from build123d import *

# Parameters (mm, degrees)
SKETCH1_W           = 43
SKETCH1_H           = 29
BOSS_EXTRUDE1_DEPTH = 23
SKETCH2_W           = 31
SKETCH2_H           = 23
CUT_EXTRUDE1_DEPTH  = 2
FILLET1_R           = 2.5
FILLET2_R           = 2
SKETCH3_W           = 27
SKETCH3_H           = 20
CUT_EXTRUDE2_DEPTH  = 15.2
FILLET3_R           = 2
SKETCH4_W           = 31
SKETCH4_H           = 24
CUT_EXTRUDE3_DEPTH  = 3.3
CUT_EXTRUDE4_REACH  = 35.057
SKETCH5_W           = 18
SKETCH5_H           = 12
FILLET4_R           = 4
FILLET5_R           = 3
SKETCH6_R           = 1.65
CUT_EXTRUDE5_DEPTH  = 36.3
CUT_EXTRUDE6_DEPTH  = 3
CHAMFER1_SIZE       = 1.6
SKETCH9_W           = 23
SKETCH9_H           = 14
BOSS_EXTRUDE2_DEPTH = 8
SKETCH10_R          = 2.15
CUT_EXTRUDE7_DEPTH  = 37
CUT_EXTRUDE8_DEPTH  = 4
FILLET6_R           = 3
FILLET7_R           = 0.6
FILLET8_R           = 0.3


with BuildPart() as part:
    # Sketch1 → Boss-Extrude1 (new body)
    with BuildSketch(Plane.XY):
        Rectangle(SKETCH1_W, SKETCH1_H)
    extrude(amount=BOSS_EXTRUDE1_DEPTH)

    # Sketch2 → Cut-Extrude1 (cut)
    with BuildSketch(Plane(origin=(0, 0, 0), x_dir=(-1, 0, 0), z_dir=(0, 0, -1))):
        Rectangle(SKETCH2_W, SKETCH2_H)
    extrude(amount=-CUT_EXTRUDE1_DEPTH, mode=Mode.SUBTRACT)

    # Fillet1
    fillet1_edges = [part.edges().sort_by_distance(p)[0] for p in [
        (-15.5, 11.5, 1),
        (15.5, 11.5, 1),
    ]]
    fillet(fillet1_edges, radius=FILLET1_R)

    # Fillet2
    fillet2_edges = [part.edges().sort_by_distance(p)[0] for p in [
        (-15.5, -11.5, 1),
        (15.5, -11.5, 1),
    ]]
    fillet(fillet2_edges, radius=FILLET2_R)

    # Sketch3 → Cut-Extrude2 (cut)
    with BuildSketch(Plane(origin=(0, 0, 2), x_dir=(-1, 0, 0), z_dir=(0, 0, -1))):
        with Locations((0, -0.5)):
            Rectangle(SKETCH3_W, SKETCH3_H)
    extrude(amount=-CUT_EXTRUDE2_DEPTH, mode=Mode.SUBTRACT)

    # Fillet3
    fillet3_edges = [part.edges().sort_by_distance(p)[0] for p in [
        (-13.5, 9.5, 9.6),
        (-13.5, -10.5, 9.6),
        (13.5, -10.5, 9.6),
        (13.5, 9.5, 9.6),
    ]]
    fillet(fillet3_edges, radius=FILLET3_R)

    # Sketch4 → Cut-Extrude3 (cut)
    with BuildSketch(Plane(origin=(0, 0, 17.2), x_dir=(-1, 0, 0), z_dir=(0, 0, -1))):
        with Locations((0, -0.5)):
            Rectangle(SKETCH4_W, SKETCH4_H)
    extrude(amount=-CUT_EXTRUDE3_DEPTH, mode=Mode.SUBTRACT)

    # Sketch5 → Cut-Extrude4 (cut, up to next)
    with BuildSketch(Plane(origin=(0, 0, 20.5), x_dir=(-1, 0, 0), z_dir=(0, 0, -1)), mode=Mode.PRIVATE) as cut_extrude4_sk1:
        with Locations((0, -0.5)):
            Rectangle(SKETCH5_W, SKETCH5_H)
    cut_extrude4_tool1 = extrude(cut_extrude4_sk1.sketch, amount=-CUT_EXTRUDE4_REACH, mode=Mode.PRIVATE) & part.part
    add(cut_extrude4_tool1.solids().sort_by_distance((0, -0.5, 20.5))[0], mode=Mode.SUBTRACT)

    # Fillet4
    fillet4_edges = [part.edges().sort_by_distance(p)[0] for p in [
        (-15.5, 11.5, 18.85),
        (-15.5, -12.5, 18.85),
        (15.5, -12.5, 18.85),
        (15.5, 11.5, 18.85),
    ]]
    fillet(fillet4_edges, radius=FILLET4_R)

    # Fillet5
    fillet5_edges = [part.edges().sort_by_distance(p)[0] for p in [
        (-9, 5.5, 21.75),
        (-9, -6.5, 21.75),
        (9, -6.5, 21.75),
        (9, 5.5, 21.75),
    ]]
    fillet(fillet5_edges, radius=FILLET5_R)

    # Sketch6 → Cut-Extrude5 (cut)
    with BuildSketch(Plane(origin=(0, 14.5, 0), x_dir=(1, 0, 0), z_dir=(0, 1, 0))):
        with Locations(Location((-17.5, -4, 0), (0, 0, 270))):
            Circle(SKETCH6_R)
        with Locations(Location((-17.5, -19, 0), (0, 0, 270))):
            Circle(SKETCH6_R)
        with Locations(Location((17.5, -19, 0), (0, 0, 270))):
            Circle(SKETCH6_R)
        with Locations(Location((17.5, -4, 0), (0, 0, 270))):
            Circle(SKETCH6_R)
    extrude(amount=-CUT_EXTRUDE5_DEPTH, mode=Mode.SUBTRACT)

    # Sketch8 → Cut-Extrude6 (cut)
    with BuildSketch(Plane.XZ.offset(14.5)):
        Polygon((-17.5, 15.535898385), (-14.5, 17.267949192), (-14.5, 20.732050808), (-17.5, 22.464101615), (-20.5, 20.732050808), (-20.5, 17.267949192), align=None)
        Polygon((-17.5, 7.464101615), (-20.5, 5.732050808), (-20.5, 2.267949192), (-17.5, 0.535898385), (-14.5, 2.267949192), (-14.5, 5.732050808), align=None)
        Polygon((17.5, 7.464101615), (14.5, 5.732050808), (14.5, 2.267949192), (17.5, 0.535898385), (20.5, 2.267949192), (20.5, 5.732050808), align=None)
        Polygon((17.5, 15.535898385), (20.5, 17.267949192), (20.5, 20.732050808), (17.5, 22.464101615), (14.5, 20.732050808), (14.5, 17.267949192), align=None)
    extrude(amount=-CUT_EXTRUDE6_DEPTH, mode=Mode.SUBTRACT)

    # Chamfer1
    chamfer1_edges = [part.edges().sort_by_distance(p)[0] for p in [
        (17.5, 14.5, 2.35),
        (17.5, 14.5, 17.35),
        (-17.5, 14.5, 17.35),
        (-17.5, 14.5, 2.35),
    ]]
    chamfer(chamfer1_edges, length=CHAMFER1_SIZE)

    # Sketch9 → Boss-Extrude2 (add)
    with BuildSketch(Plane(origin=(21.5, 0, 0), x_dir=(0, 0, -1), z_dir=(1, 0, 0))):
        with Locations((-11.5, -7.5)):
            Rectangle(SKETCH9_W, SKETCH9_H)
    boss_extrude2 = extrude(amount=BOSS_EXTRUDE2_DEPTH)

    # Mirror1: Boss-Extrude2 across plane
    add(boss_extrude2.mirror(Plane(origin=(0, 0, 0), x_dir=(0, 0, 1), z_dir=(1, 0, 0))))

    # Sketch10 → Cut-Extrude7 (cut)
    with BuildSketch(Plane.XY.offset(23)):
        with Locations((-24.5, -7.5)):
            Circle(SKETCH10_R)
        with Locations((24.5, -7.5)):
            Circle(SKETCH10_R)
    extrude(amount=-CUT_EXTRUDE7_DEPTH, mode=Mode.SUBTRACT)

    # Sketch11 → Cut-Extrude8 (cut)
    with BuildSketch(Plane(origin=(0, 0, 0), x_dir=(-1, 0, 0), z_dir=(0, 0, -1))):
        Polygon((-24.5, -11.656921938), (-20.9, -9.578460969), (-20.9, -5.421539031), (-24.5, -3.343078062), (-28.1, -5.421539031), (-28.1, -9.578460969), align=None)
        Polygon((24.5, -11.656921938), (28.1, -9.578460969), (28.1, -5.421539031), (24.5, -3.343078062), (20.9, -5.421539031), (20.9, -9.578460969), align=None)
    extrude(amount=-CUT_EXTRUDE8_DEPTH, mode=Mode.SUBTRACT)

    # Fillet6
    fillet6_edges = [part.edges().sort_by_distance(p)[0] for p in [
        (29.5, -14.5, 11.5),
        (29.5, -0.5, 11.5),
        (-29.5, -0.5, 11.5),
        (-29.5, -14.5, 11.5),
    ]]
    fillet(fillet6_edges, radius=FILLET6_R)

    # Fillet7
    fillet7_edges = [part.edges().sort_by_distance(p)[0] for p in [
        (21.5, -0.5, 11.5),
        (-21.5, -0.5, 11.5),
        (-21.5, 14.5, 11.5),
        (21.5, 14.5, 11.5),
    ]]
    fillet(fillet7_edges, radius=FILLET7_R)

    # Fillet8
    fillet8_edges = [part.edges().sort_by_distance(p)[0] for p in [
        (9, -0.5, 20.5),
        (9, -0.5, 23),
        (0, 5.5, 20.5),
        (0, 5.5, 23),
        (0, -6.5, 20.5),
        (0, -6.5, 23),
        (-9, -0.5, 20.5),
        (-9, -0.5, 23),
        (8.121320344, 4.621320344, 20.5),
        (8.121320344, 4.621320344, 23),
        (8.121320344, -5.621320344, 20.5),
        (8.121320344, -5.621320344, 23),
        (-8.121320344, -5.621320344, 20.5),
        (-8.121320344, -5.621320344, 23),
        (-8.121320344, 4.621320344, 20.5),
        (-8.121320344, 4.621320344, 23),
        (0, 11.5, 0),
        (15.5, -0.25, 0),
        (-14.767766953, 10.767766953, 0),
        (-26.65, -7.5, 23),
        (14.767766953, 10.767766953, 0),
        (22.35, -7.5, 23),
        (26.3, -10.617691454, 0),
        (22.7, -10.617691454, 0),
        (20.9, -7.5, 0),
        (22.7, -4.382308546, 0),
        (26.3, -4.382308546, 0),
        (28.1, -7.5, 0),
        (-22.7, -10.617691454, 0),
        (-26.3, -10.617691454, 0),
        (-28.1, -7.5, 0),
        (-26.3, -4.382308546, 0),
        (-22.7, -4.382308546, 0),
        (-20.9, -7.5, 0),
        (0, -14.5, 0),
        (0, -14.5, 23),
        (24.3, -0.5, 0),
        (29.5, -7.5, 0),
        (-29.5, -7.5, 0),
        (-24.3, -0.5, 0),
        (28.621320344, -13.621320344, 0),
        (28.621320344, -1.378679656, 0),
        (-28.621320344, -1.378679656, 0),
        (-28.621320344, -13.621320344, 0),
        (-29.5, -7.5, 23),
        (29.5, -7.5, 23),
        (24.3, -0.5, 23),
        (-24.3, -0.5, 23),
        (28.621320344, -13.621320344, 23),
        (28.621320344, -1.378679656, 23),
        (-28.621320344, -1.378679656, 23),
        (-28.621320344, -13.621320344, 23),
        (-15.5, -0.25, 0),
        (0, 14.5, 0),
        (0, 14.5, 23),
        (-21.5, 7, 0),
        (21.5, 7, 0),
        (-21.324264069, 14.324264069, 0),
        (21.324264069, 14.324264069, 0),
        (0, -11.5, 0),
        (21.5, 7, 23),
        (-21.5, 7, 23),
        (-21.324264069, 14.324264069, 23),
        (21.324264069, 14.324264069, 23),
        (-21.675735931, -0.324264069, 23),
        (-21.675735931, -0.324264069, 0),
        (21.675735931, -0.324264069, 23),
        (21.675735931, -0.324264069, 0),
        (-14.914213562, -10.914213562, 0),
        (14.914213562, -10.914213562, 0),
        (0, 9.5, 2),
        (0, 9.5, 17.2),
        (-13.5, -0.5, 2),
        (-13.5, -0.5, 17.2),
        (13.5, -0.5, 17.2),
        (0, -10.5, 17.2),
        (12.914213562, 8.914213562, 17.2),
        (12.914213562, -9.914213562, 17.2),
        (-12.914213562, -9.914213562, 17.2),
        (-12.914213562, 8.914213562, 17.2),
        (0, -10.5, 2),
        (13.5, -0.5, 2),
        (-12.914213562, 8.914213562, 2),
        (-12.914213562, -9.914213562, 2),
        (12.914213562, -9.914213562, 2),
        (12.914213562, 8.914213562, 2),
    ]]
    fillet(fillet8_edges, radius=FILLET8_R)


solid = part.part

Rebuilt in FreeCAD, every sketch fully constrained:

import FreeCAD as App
import Part
import Sketcher

V = App.Vector
Q = App.Units.Quantity


def edges_at(feature, points):
    """Names of the edges that pass closest to the given points."""
    edges = feature.Shape.Edges
    near = lambda p: min(range(len(edges)), key=lambda i: edges[i].distToShape(Part.Vertex(*p))[0])
    return sorted({f"Edge{near(p) + 1}" for p in points})

doc = App.newDocument("Part")
params = doc.addObject("Spreadsheet::Sheet", "Params")
for row, (alias, value) in enumerate([
    ("sketch1_width", "43 mm"),
    ("sketch1_height", "29 mm"),
    ("pad1_length", "23 mm"),
    ("sketch2_width", "31 mm"),
    ("sketch2_height", "23 mm"),
    ("pocket1_length", "2 mm"),
    ("fillet_radius", "2.5 mm"),
    ("fillet2_radius", "2 mm"),
    ("sketch3_width", "27 mm"),
    ("sketch3_height", "20 mm"),
    ("pocket2_length", "15.2 mm"),
    ("fillet3_radius", "2 mm"),
    ("sketch4_width", "31 mm"),
    ("sketch4_height", "24 mm"),
    ("pocket3_length", "3.3 mm"),
    ("sketch5_width", "18 mm"),
    ("sketch5_height", "12 mm"),
    ("fillet4_radius", "4 mm"),
    ("fillet5_radius", "3 mm"),
    ("sketch6_diameter", "3.3 mm"),
    ("pocket5_length", "36.3 mm"),
    ("pocket6_length", "3 mm"),
    ("chamfer_size", "1.6 mm"),
    ("sketch8_width", "14 mm"),
    ("sketch8_height", "23 mm"),
    ("pad2_length", "8 mm"),
    ("sketch9_diameter", "4.3 mm"),
    ("pocket7_length", "37 mm"),
    ("pocket8_length", "4 mm"),
    ("fillet6_radius", "3 mm"),
    ("fillet7_radius", "0.6 mm"),
    ("fillet8_radius", "0.3 mm"),
], start=1):
    params.set(f"A{row}", alias)
    params.set(f"B{row}", "=" + value)
    params.setAlias(f"B{row}", alias)

body = doc.addObject("PartDesign::Body", "Body")

# Sketch on XY plane
sketch1 = body.newObject("Sketcher::SketchObject", "Sketch")
sketch1.AttachmentSupport = (doc.getObject("XY_Plane"), [""])
sketch1.MapMode = "FlatFace"
sketch1.addGeometry([
    Part.LineSegment(V(-22, 14, 0), V(-22, -14, 0)),
    Part.LineSegment(V(-22, -14, 0), V(22, -14, 0)),
    Part.LineSegment(V(22, -14, 0), V(22, 14, 0)),
    Part.LineSegment(V(22, 14, 0), V(-22, 14, 0)),
], False)
sketch1.addConstraint([
    Sketcher.Constraint("Coincident", 0, 2, 1, 1),
    Sketcher.Constraint("Coincident", 1, 2, 2, 1),
    Sketcher.Constraint("Coincident", 2, 2, 3, 1),
    Sketcher.Constraint("Coincident", 3, 2, 0, 1),
    Sketcher.Constraint("Vertical", 0),
    Sketcher.Constraint("Horizontal", 1),
    Sketcher.Constraint("Vertical", 2),
    Sketcher.Constraint("Horizontal", 3),
    Sketcher.Constraint("Symmetric", 0, 2, 2, 2, -1, 1),
    Sketcher.Constraint("DistanceX", 1, 1, 1, 2, 43.0),
    Sketcher.Constraint("DistanceY", 0, 2, 0, 1, 29.0),
])
sketch1.setExpression("Constraints[9]", "Params.sketch1_width")
sketch1.setExpression("Constraints[10]", "Params.sketch1_height")
pad1 = body.newObject("PartDesign::Pad", "Pad")
pad1.Profile = sketch1
pad1.setExpression("Length", "Params.pad1_length")

# Sketch on XY plane
sketch2 = body.newObject("Sketcher::SketchObject", "Sketch001")
sketch2.AttachmentSupport = (doc.getObject("XY_Plane"), [""])
sketch2.MapMode = "FlatFace"
sketch2.addGeometry([
    Part.LineSegment(V(16, 12, 0), V(16, -12, 0)),
    Part.LineSegment(V(16, -12, 0), V(-16, -12, 0)),
    Part.LineSegment(V(-16, -12, 0), V(-16, 12, 0)),
    Part.LineSegment(V(-16, 12, 0), V(16, 12, 0)),
], False)
sketch2.addConstraint([
    Sketcher.Constraint("Coincident", 0, 2, 1, 1),
    Sketcher.Constraint("Coincident", 1, 2, 2, 1),
    Sketcher.Constraint("Coincident", 2, 2, 3, 1),
    Sketcher.Constraint("Coincident", 3, 2, 0, 1),
    Sketcher.Constraint("Vertical", 0),
    Sketcher.Constraint("Horizontal", 1),
    Sketcher.Constraint("Vertical", 2),
    Sketcher.Constraint("Horizontal", 3),
    Sketcher.Constraint("Symmetric", 0, 2, 2, 2, -1, 1),
    Sketcher.Constraint("DistanceX", 1, 2, 1, 1, 31.0),
    Sketcher.Constraint("DistanceY", 0, 2, 0, 1, 23.0),
])
sketch2.setExpression("Constraints[9]", "Params.sketch2_width")
sketch2.setExpression("Constraints[10]", "Params.sketch2_height")
pocket1 = body.newObject("PartDesign::Pocket", "Pocket")
pocket1.Profile = sketch2
pocket1.setExpression("Length", "Params.pocket1_length")
pocket1.Reversed = True
doc.recompute()

fillet = body.newObject("PartDesign::Fillet", "Fillet")
fillet.Base = (pocket1, edges_at(pocket1, [(-15.5, 11.5, 1), (15.5, 11.5, 1)]))
fillet.setExpression("Radius", "Params.fillet_radius")
doc.recompute()

fillet2 = body.newObject("PartDesign::Fillet", "Fillet001")
fillet2.Base = (fillet, edges_at(fillet, [(-15.5, -11.5, 1), (15.5, -11.5, 1)]))
fillet2.setExpression("Radius", "Params.fillet2_radius")

# Sketch on XY plane
sketch3 = body.newObject("Sketcher::SketchObject", "Sketch002")
sketch3.AttachmentSupport = (doc.getObject("XY_Plane"), [""])
sketch3.MapMode = "FlatFace"
sketch3.AttachmentOffset = App.Placement(V(0, 0, 2), App.Rotation())
sketch3.addGeometry([
    Part.LineSegment(V(14, 10, 0), V(14, -10, 0)),
    Part.LineSegment(V(14, -10, 0), V(-14, -10, 0)),
    Part.LineSegment(V(-14, -10, 0), V(-14, 10, 0)),
    Part.LineSegment(V(-14, 10, 0), V(14, 10, 0)),
], False)
sketch3.addConstraint([
    Sketcher.Constraint("Coincident", 0, 2, 1, 1),
    Sketcher.Constraint("Coincident", 1, 2, 2, 1),
    Sketcher.Constraint("Coincident", 2, 2, 3, 1),
    Sketcher.Constraint("Coincident", 3, 2, 0, 1),
    Sketcher.Constraint("Vertical", 0),
    Sketcher.Constraint("Horizontal", 1),
    Sketcher.Constraint("Vertical", 2),
    Sketcher.Constraint("Horizontal", 3),
    Sketcher.Constraint("DistanceX", 1, 2, 1, 1, 27.0),
    Sketcher.Constraint("DistanceY", 0, 2, 0, 1, 20.0),
    Sketcher.Constraint("DistanceX", -1, 1, 0, 2, 13.5),
    Sketcher.Constraint("DistanceY", 0, 2, -1, 1, 10.5),
])
sketch3.setExpression("Constraints[8]", "Params.sketch3_width")
sketch3.setExpression("Constraints[9]", "Params.sketch3_height")
pocket2 = body.newObject("PartDesign::Pocket", "Pocket001")
pocket2.Profile = sketch3
pocket2.setExpression("Length", "Params.pocket2_length")
pocket2.Reversed = True
doc.recompute()

fillet3 = body.newObject("PartDesign::Fillet", "Fillet002")
fillet3.Base = (pocket2, edges_at(pocket2, [
    (-13.5, 9.5, 9.6),
    (-13.5, -10.5, 9.6),
    (13.5, -10.5, 9.6),
    (13.5, 9.5, 9.6),
]))
fillet3.setExpression("Radius", "Params.fillet3_radius")

# Sketch on XY plane
sketch4 = body.newObject("Sketcher::SketchObject", "Sketch003")
sketch4.AttachmentSupport = (doc.getObject("XY_Plane"), [""])
sketch4.MapMode = "FlatFace"
sketch4.AttachmentOffset = App.Placement(V(0, 0, 17.2), App.Rotation())
sketch4.addGeometry([
    Part.LineSegment(V(16, 12, 0), V(16, -12, 0)),
    Part.LineSegment(V(16, -12, 0), V(-16, -12, 0)),
    Part.LineSegment(V(-16, -12, 0), V(-16, 12, 0)),
    Part.LineSegment(V(-16, 12, 0), V(16, 12, 0)),
], False)
sketch4.addConstraint([
    Sketcher.Constraint("Coincident", 0, 2, 1, 1),
    Sketcher.Constraint("Coincident", 1, 2, 2, 1),
    Sketcher.Constraint("Coincident", 2, 2, 3, 1),
    Sketcher.Constraint("Coincident", 3, 2, 0, 1),
    Sketcher.Constraint("Vertical", 0),
    Sketcher.Constraint("Horizontal", 1),
    Sketcher.Constraint("Vertical", 2),
    Sketcher.Constraint("Horizontal", 3),
    Sketcher.Constraint("DistanceX", 1, 2, 1, 1, 31.0),
    Sketcher.Constraint("DistanceY", 0, 2, 0, 1, 24.0),
    Sketcher.Constraint("DistanceX", -1, 1, 0, 2, 15.5),
    Sketcher.Constraint("DistanceY", 0, 2, -1, 1, 12.5),
])
sketch4.setExpression("Constraints[8]", "Params.sketch4_width")
sketch4.setExpression("Constraints[9]", "Params.sketch4_height")
pocket3 = body.newObject("PartDesign::Pocket", "Pocket002")
pocket3.Profile = sketch4
pocket3.setExpression("Length", "Params.pocket3_length")
pocket3.Reversed = True

# Sketch on XY plane
sketch5 = body.newObject("Sketcher::SketchObject", "Sketch004")
sketch5.AttachmentSupport = (doc.getObject("XY_Plane"), [""])
sketch5.MapMode = "FlatFace"
sketch5.AttachmentOffset = App.Placement(V(0, 0, 20.5), App.Rotation())
sketch5.addGeometry([
    Part.LineSegment(V(9, 6, 0), V(9, -6, 0)),
    Part.LineSegment(V(9, -6, 0), V(-9, -6, 0)),
    Part.LineSegment(V(-9, -6, 0), V(-9, 6, 0)),
    Part.LineSegment(V(-9, 6, 0), V(9, 6, 0)),
], False)
sketch5.addConstraint([
    Sketcher.Constraint("Coincident", 0, 2, 1, 1),
    Sketcher.Constraint("Coincident", 1, 2, 2, 1),
    Sketcher.Constraint("Coincident", 2, 2, 3, 1),
    Sketcher.Constraint("Coincident", 3, 2, 0, 1),
    Sketcher.Constraint("Vertical", 0),
    Sketcher.Constraint("Horizontal", 1),
    Sketcher.Constraint("Vertical", 2),
    Sketcher.Constraint("Horizontal", 3),
    Sketcher.Constraint("DistanceX", 1, 2, 1, 1, 18.0),
    Sketcher.Constraint("DistanceY", 0, 2, 0, 1, 12.0),
    Sketcher.Constraint("DistanceX", -1, 1, 0, 2, 9.0),
    Sketcher.Constraint("DistanceY", 0, 2, -1, 1, 6.5),
])
sketch5.setExpression("Constraints[8]", "Params.sketch5_width")
sketch5.setExpression("Constraints[9]", "Params.sketch5_height")
pocket4 = body.newObject("PartDesign::Pocket", "Pocket003")
pocket4.Profile = sketch5
pocket4.Type = "UpToFirst"
pocket4.Reversed = True
doc.recompute()

fillet4 = body.newObject("PartDesign::Fillet", "Fillet003")
fillet4.Base = (pocket4, edges_at(pocket4, [
    (-15.5, 11.5, 18.85),
    (-15.5, -12.5, 18.85),
    (15.5, -12.5, 18.85),
    (15.5, 11.5, 18.85),
]))
fillet4.setExpression("Radius", "Params.fillet4_radius")
doc.recompute()

fillet5 = body.newObject("PartDesign::Fillet", "Fillet004")
fillet5.Base = (fillet4, edges_at(fillet4, [
    (-9, 5.5, 21.75),
    (-9, -6.5, 21.75),
    (9, -6.5, 21.75),
    (9, 5.5, 21.75),
]))
fillet5.setExpression("Radius", "Params.fillet5_radius")

# Sketch on XZ plane
sketch6 = body.newObject("Sketcher::SketchObject", "Sketch005")
sketch6.AttachmentSupport = (doc.getObject("XZ_Plane"), [""])
sketch6.MapMode = "FlatFace"
sketch6.AttachmentOffset = App.Placement(V(0, 0, -14.5), App.Rotation())
sketch6.addGeometry([
    Part.Circle(V(-17.5, 4, 0), V(0, 0, 1), 1.6),
    Part.Circle(V(-17.5, 19, 0), V(0, 0, 1), 1.6),
    Part.Circle(V(17.5, 19, 0), V(0, 0, 1), 1.6),
    Part.Circle(V(17.5, 4, 0), V(0, 0, 1), 1.6),
], False)
sketch6.addConstraint([
    Sketcher.Constraint("Equal", 0, 1),
    Sketcher.Constraint("Equal", 1, 2),
    Sketcher.Constraint("Equal", 2, 3),
    Sketcher.Constraint("Symmetric", 1, 3, 2, 3, -2),
    Sketcher.Constraint("Symmetric", 0, 3, 3, 3, -2),
    Sketcher.Constraint("Vertical", 0, 3, 1, 3),
    Sketcher.Constraint("Diameter", 0, 3.3),
    Sketcher.Constraint("DistanceY", -1, 1, 0, 3, 4.0),
    Sketcher.Constraint("DistanceY", -1, 1, 1, 3, 19.0),
    Sketcher.Constraint("DistanceX", 1, 3, 2, 3, 35.0),
])
sketch6.setExpression("Constraints[6]", "Params.sketch6_diameter")
pocket5 = body.newObject("PartDesign::Pocket", "Pocket004")
pocket5.Profile = sketch6
pocket5.setExpression("Length", "Params.pocket5_length")
pocket5.Reversed = True

# Sketch on XZ plane
sketch7 = body.newObject("Sketcher::SketchObject", "Sketch006")
sketch7.AttachmentSupport = (doc.getObject("XZ_Plane"), [""])
sketch7.MapMode = "FlatFace"
sketch7.AttachmentOffset = App.Placement(V(0, 0, 14.5), App.Rotation())
sketch7.addGeometry([
    Part.LineSegment(V(-17.5, 15.5, 0), V(-14.5, 17.3, 0)),  # 0
    Part.LineSegment(V(-14.5, 17.3, 0), V(-14.5, 20.7, 0)),  # 1
    Part.LineSegment(V(-14.5, 20.7, 0), V(-17.5, 22.5, 0)),  # 2
    Part.LineSegment(V(-17.5, 22.5, 0), V(-20.5, 20.7, 0)),  # 3
    Part.LineSegment(V(-20.5, 20.7, 0), V(-20.5, 17.3, 0)),  # 4
    Part.LineSegment(V(-20.5, 17.3, 0), V(-17.5, 15.5, 0)),  # 5
    Part.LineSegment(V(-17.5, 7.5, 0), V(-20.5, 5.7, 0)),  # 6
    Part.LineSegment(V(-20.5, 5.7, 0), V(-20.5, 2.3, 0)),  # 7
    Part.LineSegment(V(-20.5, 2.3, 0), V(-17.5, 0.5, 0)),  # 8
    Part.LineSegment(V(-17.5, 0.5, 0), V(-14.5, 2.3, 0)),  # 9
    Part.LineSegment(V(-14.5, 2.3, 0), V(-14.5, 5.7, 0)),  # 10
    Part.LineSegment(V(-14.5, 5.7, 0), V(-17.5, 7.5, 0)),  # 11
    Part.LineSegment(V(17.5, 7.5, 0), V(14.5, 5.7, 0)),  # 12
    Part.LineSegment(V(14.5, 5.7, 0), V(14.5, 2.3, 0)),  # 13
    Part.LineSegment(V(14.5, 2.3, 0), V(17.5, 0.5, 0)),  # 14
    Part.LineSegment(V(17.5, 0.5, 0), V(20.5, 2.3, 0)),  # 15
    Part.LineSegment(V(20.5, 2.3, 0), V(20.5, 5.7, 0)),  # 16
    Part.LineSegment(V(20.5, 5.7, 0), V(17.5, 7.5, 0)),  # 17
    Part.LineSegment(V(17.5, 15.5, 0), V(20.5, 17.3, 0)),  # 18
    Part.LineSegment(V(20.5, 17.3, 0), V(20.5, 20.7, 0)),  # 19
    Part.LineSegment(V(20.5, 20.7, 0), V(17.5, 22.5, 0)),  # 20
    Part.LineSegment(V(17.5, 22.5, 0), V(14.5, 20.7, 0)),  # 21
    Part.LineSegment(V(14.5, 20.7, 0), V(14.5, 17.3, 0)),  # 22
    Part.LineSegment(V(14.5, 17.3, 0), V(17.5, 15.5, 0)),  # 23
], False)
sketch7.addConstraint([
    Sketcher.Constraint("Coincident", 0, 2, 1, 1),
    Sketcher.Constraint("Coincident", 1, 2, 2, 1),
    Sketcher.Constraint("Coincident", 2, 2, 3, 1),
    Sketcher.Constraint("Coincident", 3, 2, 4, 1),
    Sketcher.Constraint("Coincident", 4, 2, 5, 1),
    Sketcher.Constraint("Coincident", 5, 2, 0, 1),
    Sketcher.Constraint("Coincident", 6, 2, 7, 1),
    Sketcher.Constraint("Coincident", 7, 2, 8, 1),
    Sketcher.Constraint("Coincident", 8, 2, 9, 1),
    Sketcher.Constraint("Coincident", 9, 2, 10, 1),
    Sketcher.Constraint("Coincident", 10, 2, 11, 1),
    Sketcher.Constraint("Coincident", 11, 2, 6, 1),
    Sketcher.Constraint("Coincident", 12, 2, 13, 1),
    Sketcher.Constraint("Coincident", 13, 2, 14, 1),
    Sketcher.Constraint("Coincident", 14, 2, 15, 1),
    Sketcher.Constraint("Coincident", 15, 2, 16, 1),
    Sketcher.Constraint("Coincident", 16, 2, 17, 1),
    Sketcher.Constraint("Coincident", 17, 2, 12, 1),
    Sketcher.Constraint("Coincident", 18, 2, 19, 1),
    Sketcher.Constraint("Coincident", 19, 2, 20, 1),
    Sketcher.Constraint("Coincident", 20, 2, 21, 1),
    Sketcher.Constraint("Coincident", 21, 2, 22, 1),
    Sketcher.Constraint("Coincident", 22, 2, 23, 1),
    Sketcher.Constraint("Coincident", 23, 2, 18, 1),
    Sketcher.Constraint("Vertical", 1),
    Sketcher.Constraint("Vertical", 4),
    Sketcher.Constraint("Vertical", 7),
    Sketcher.Constraint("Vertical", 10),
    Sketcher.Constraint("Vertical", 13),
    Sketcher.Constraint("Vertical", 16),
    Sketcher.Constraint("Vertical", 19),
    Sketcher.Constraint("Vertical", 22),
    Sketcher.Constraint("Symmetric", 10, 2, 12, 2, -2),
    Sketcher.Constraint("Symmetric", 8, 2, 14, 2, -2),
    Sketcher.Constraint("Symmetric", 7, 2, 15, 2, -2),
    Sketcher.Constraint("Symmetric", 11, 2, 17, 2, -2),
    Sketcher.Constraint("Symmetric", 4, 2, 18, 2, -2),
    Sketcher.Constraint("Symmetric", 2, 2, 20, 2, -2),
    Sketcher.Constraint("Symmetric", 1, 2, 21, 2, -2),
    Sketcher.Constraint("Symmetric", 5, 2, 23, 2, -2),
    Sketcher.Constraint("Parallel", 0, 3),
    Sketcher.Constraint("Parallel", 2, 5),
    Sketcher.Constraint("Parallel", 3, 6),
    Sketcher.Constraint("Parallel", 5, 8),
    Sketcher.Constraint("Parallel", 6, 9),
    Sketcher.Constraint("Parallel", 8, 11),
    Sketcher.Constraint("Parallel", 9, 12),
    Sketcher.Constraint("Parallel", 11, 14),
    Sketcher.Constraint("Parallel", 14, 17),
    Sketcher.Constraint("Parallel", 17, 20),
    Sketcher.Constraint("Parallel", 20, 23),
    Sketcher.Constraint("Horizontal", 1, 2, 3, 2),
    Sketcher.Constraint("Horizontal", 0, 2, 4, 2),
    Sketcher.Constraint("Horizontal", 7, 2, 9, 2),
    Sketcher.Constraint("Horizontal", 6, 2, 10, 2),
    Sketcher.Constraint("Vertical", 4, 2, 6, 2),
    Sketcher.Constraint("Vertical", 5, 2, 8, 2),
    Sketcher.Constraint("Equal", 4, 7),
    Sketcher.Constraint("Angle", 0, Q("30 deg")),
    Sketcher.Constraint("DistanceX", 2, 2, 1, 2, 3.0),
    Sketcher.Constraint("DistanceY", 6, 2, 3, 2, 15.0),
    Sketcher.Constraint("DistanceX", 10, 2, 12, 2, 29.0),
    Sketcher.Constraint("DistanceY", 1, 1, 1, 2, 3.464102),
    Sketcher.Constraint("DistanceY", -1, 1, 2, 2, 22.464102),
])
pocket6 = body.newObject("PartDesign::Pocket", "Pocket005")
pocket6.Profile = sketch7
pocket6.setExpression("Length", "Params.pocket6_length")
doc.recompute()

chamfer = body.newObject("PartDesign::Chamfer", "Chamfer")
chamfer.Base = (pocket6, edges_at(pocket6, [
    (17.5, 14.5, 2.35),
    (17.5, 14.5, 17.35),
    (-17.5, 14.5, 17.35),
    (-17.5, 14.5, 2.35),
]))
chamfer.setExpression("Size", "Params.chamfer_size")

# Sketch on YZ plane
sketch8 = body.newObject("Sketcher::SketchObject", "Sketch007")
sketch8.AttachmentSupport = (doc.getObject("YZ_Plane"), [""])
sketch8.MapMode = "FlatFace"
sketch8.AttachmentOffset = App.Placement(V(0, 0, 21.5), App.Rotation())
sketch8.addGeometry([
    Part.LineSegment(V(0, 23, 0), V(-14, 23, 0)),
    Part.LineSegment(V(-14, 23, 0), V(-14, 0, 0)),
    Part.LineSegment(V(-14, 0, 0), V(0, 0, 0)),
    Part.LineSegment(V(0, 0, 0), V(0, 23, 0)),
], False)
sketch8.addConstraint([
    Sketcher.Constraint("Coincident", 0, 2, 1, 1),
    Sketcher.Constraint("Coincident", 1, 2, 2, 1),
    Sketcher.Constraint("Coincident", 2, 2, 3, 1),
    Sketcher.Constraint("Coincident", 3, 2, 0, 1),
    Sketcher.Constraint("Horizontal", 0),
    Sketcher.Constraint("Vertical", 1),
    Sketcher.Constraint("Horizontal", 2),
    Sketcher.Constraint("Vertical", 3),
    Sketcher.Constraint("PointOnObject", 1, 2, -1),
    Sketcher.Constraint("DistanceX", 0, 2, 0, 1, 14.0),
    Sketcher.Constraint("DistanceY", 1, 2, 1, 1, 23.0),
    Sketcher.Constraint("DistanceX", 0, 2, -1, 1, 14.5),
])
sketch8.setExpression("Constraints[9]", "Params.sketch8_width")
sketch8.setExpression("Constraints[10]", "Params.sketch8_height")
pad2 = body.newObject("PartDesign::Pad", "Pad001")
pad2.Profile = sketch8
pad2.setExpression("Length", "Params.pad2_length")
doc.recompute()

mirrored = body.newObject("PartDesign::Mirrored", "Mirrored")
mirrored.Originals = [pad2]
mirrored.MirrorPlane = (doc.getObject("YZ_Plane"), [""])
body.Tip = mirrored

# Sketch on XY plane
sketch9 = body.newObject("Sketcher::SketchObject", "Sketch008")
sketch9.AttachmentSupport = (doc.getObject("XY_Plane"), [""])
sketch9.MapMode = "FlatFace"
sketch9.AttachmentOffset = App.Placement(V(0, 0, 23), App.Rotation())
sketch9.addGeometry([
    Part.Circle(V(-24.5, -7.5, 0), V(0, 0, 1), 2.1),
    Part.Circle(V(24.5, -7.5, 0), V(0, 0, 1), 2.1),
], False)
sketch9.addConstraint([
    Sketcher.Constraint("Equal", 0, 1),
    Sketcher.Constraint("Symmetric", 0, 3, 1, 3, -2),
    Sketcher.Constraint("Diameter", 0, 4.3),
    Sketcher.Constraint("DistanceX", 0, 3, 1, 3, 49.0),
    Sketcher.Constraint("DistanceY", 0, 3, -1, 1, 7.5),
])
sketch9.setExpression("Constraints[2]", "Params.sketch9_diameter")
pocket7 = body.newObject("PartDesign::Pocket", "Pocket006")
pocket7.Profile = sketch9
pocket7.setExpression("Length", "Params.pocket7_length")

# Sketch on XY plane
sketch10 = body.newObject("Sketcher::SketchObject", "Sketch009")
sketch10.AttachmentSupport = (doc.getObject("XY_Plane"), [""])
sketch10.MapMode = "FlatFace"
sketch10.addGeometry([
    Part.LineSegment(V(24.5, -11.7, 0), V(20.9, -9.6, 0)),  # 0
    Part.LineSegment(V(20.9, -9.6, 0), V(20.9, -5.4, 0)),  # 1
    Part.LineSegment(V(20.9, -5.4, 0), V(24.5, -3.3, 0)),  # 2
    Part.LineSegment(V(24.5, -3.3, 0), V(28.1, -5.4, 0)),  # 3
    Part.LineSegment(V(28.1, -5.4, 0), V(28.1, -9.6, 0)),  # 4
    Part.LineSegment(V(28.1, -9.6, 0), V(24.5, -11.7, 0)),  # 5
    Part.LineSegment(V(-24.5, -11.7, 0), V(-28.1, -9.6, 0)),  # 6
    Part.LineSegment(V(-28.1, -9.6, 0), V(-28.1, -5.4, 0)),  # 7
    Part.LineSegment(V(-28.1, -5.4, 0), V(-24.5, -3.3, 0)),  # 8
    Part.LineSegment(V(-24.5, -3.3, 0), V(-20.9, -5.4, 0)),  # 9
    Part.LineSegment(V(-20.9, -5.4, 0), V(-20.9, -9.6, 0)),  # 10
    Part.LineSegment(V(-20.9, -9.6, 0), V(-24.5, -11.7, 0)),  # 11
], False)
sketch10.addConstraint([
    Sketcher.Constraint("Coincident", 0, 2, 1, 1),
    Sketcher.Constraint("Coincident", 1, 2, 2, 1),
    Sketcher.Constraint("Coincident", 2, 2, 3, 1),
    Sketcher.Constraint("Coincident", 3, 2, 4, 1),
    Sketcher.Constraint("Coincident", 4, 2, 5, 1),
    Sketcher.Constraint("Coincident", 5, 2, 0, 1),
    Sketcher.Constraint("Coincident", 6, 2, 7, 1),
    Sketcher.Constraint("Coincident", 7, 2, 8, 1),
    Sketcher.Constraint("Coincident", 8, 2, 9, 1),
    Sketcher.Constraint("Coincident", 9, 2, 10, 1),
    Sketcher.Constraint("Coincident", 10, 2, 11, 1),
    Sketcher.Constraint("Coincident", 11, 2, 6, 1),
    Sketcher.Constraint("Vertical", 1),
    Sketcher.Constraint("Vertical", 4),
    Sketcher.Constraint("Vertical", 7),
    Sketcher.Constraint("Vertical", 10),
    Sketcher.Constraint("Symmetric", 4, 2, 6, 2, -2),
    Sketcher.Constraint("Symmetric", 2, 2, 8, 2, -2),
    Sketcher.Constraint("Symmetric", 1, 2, 9, 2, -2),
    Sketcher.Constraint("Symmetric", 5, 2, 11, 2, -2),
    Sketcher.Constraint("Parallel", 0, 3),
    Sketcher.Constraint("Parallel", 2, 5),
    Sketcher.Constraint("Parallel", 3, 6),
    Sketcher.Constraint("Parallel", 5, 8),
    Sketcher.Constraint("Parallel", 8, 11),
    Sketcher.Constraint("Horizontal", 1, 2, 3, 2),
    Sketcher.Constraint("Horizontal", 0, 2, 4, 2),
    Sketcher.Constraint("Angle", 0, Q("150 deg")),
    Sketcher.Constraint("DistanceX", 6, 2, 0, 2, 49.0),
    Sketcher.Constraint("DistanceX", -1, 1, 0, 2, 20.9),
    Sketcher.Constraint("DistanceY", 1, 1, 1, 2, 4.156922),
    Sketcher.Constraint("DistanceY", 0, 2, -1, 1, 9.578461),
])
pocket8 = body.newObject("PartDesign::Pocket", "Pocket007")
pocket8.Profile = sketch10
pocket8.setExpression("Length", "Params.pocket8_length")
pocket8.Reversed = True
doc.recompute()

fillet6 = body.newObject("PartDesign::Fillet", "Fillet005")
fillet6.Base = (pocket8, edges_at(pocket8, [
    (29.5, -14.5, 11.5),
    (29.5, -0.5, 11.5),
    (-29.5, -0.5, 11.5),
    (-29.5, -14.5, 11.5),
]))
fillet6.setExpression("Radius", "Params.fillet6_radius")
doc.recompute()

fillet7 = body.newObject("PartDesign::Fillet", "Fillet006")
fillet7.Base = (fillet6, edges_at(fillet6, [
    (21.5, -0.5, 11.5),
    (-21.5, -0.5, 11.5),
    (-21.5, 14.5, 11.5),
    (21.5, 14.5, 11.5),
]))
fillet7.setExpression("Radius", "Params.fillet7_radius")
doc.recompute()

fillet8 = body.newObject("PartDesign::Fillet", "Fillet007")
fillet8.Base = (fillet7, edges_at(fillet7, [
    (9, -0.5, 20.5),
    (9, -0.5, 23),
    (0, 5.5, 20.5),
    (0, 5.5, 23),
    (0, -6.5, 20.5),
    (0, -6.5, 23),
    (-9, -0.5, 20.5),
    (-9, -0.5, 23),
    (8.121, 4.621, 20.5),
    (8.121, 4.621, 23),
    (8.121, -5.621, 20.5),
    (8.121, -5.621, 23),
    (-8.121, -5.621, 20.5),
    (-8.121, -5.621, 23),
    (-8.121, 4.621, 20.5),
    (-8.121, 4.621, 23),
    (0, 11.5, 0),
    (15.5, -0.25, 0),
    (-14.768, 10.768, 0),
    (-26.65, -7.5, 23),
    (14.768, 10.768, 0),
    (22.35, -7.5, 23),
    (26.3, -10.618, 0),
    (22.7, -10.618, 0),
    (20.9, -7.5, 0),
    (22.7, -4.382, 0),
    (26.3, -4.382, 0),
    (28.1, -7.5, 0),
    (-22.7, -10.618, 0),
    (-26.3, -10.618, 0),
    (-28.1, -7.5, 0),
    (-26.3, -4.382, 0),
    (-22.7, -4.382, 0),
    (-20.9, -7.5, 0),
    (0, -14.5, 0),
    (0, -14.5, 23),
    (24.3, -0.5, 0),
    (29.5, -7.5, 0),
    (-29.5, -7.5, 0),
    (-24.3, -0.5, 0),
    (28.621, -13.621, 0),
    (28.621, -1.379, 0),
    (-28.621, -1.379, 0),
    (-28.621, -13.621, 0),
    (-29.5, -7.5, 23),
    (29.5, -7.5, 23),
    (24.3, -0.5, 23),
    (-24.3, -0.5, 23),
    (28.621, -13.621, 23),
    (28.621, -1.379, 23),
    (-28.621, -1.379, 23),
    (-28.621, -13.621, 23),
    (-15.5, -0.25, 0),
    (0, 14.5, 0),
    (0, 14.5, 23),
    (-21.5, 7, 0),
    (21.5, 7, 0),
    (-21.324, 14.324, 0),
    (21.324, 14.324, 0),
    (0, -11.5, 0),
    (21.5, 7, 23),
    (-21.5, 7, 23),
    (-21.324, 14.324, 23),
    (21.324, 14.324, 23),
    (-21.676, -0.324, 23),
    (-21.676, -0.324, 0),
    (21.676, -0.324, 23),
    (21.676, -0.324, 0),
    (-14.914, -10.914, 0),
    (14.914, -10.914, 0),
    (0, 9.5, 2),
    (0, 9.5, 17.2),
    (-13.5, -0.5, 2),
    (-13.5, -0.5, 17.2),
    (13.5, -0.5, 17.2),
    (0, -10.5, 17.2),
    (12.914, 8.914, 17.2),
    (12.914, -9.914, 17.2),
    (-12.914, -9.914, 17.2),
    (-12.914, 8.914, 17.2),
    (0, -10.5, 2),
    (13.5, -0.5, 2),
    (-12.914, 8.914, 2),
    (-12.914, -9.914, 2),
    (12.914, -9.914, 2),
    (12.914, 8.914, 2),
]))
fillet8.setExpression("Radius", "Params.fillet8_radius")

doc.recompute()
